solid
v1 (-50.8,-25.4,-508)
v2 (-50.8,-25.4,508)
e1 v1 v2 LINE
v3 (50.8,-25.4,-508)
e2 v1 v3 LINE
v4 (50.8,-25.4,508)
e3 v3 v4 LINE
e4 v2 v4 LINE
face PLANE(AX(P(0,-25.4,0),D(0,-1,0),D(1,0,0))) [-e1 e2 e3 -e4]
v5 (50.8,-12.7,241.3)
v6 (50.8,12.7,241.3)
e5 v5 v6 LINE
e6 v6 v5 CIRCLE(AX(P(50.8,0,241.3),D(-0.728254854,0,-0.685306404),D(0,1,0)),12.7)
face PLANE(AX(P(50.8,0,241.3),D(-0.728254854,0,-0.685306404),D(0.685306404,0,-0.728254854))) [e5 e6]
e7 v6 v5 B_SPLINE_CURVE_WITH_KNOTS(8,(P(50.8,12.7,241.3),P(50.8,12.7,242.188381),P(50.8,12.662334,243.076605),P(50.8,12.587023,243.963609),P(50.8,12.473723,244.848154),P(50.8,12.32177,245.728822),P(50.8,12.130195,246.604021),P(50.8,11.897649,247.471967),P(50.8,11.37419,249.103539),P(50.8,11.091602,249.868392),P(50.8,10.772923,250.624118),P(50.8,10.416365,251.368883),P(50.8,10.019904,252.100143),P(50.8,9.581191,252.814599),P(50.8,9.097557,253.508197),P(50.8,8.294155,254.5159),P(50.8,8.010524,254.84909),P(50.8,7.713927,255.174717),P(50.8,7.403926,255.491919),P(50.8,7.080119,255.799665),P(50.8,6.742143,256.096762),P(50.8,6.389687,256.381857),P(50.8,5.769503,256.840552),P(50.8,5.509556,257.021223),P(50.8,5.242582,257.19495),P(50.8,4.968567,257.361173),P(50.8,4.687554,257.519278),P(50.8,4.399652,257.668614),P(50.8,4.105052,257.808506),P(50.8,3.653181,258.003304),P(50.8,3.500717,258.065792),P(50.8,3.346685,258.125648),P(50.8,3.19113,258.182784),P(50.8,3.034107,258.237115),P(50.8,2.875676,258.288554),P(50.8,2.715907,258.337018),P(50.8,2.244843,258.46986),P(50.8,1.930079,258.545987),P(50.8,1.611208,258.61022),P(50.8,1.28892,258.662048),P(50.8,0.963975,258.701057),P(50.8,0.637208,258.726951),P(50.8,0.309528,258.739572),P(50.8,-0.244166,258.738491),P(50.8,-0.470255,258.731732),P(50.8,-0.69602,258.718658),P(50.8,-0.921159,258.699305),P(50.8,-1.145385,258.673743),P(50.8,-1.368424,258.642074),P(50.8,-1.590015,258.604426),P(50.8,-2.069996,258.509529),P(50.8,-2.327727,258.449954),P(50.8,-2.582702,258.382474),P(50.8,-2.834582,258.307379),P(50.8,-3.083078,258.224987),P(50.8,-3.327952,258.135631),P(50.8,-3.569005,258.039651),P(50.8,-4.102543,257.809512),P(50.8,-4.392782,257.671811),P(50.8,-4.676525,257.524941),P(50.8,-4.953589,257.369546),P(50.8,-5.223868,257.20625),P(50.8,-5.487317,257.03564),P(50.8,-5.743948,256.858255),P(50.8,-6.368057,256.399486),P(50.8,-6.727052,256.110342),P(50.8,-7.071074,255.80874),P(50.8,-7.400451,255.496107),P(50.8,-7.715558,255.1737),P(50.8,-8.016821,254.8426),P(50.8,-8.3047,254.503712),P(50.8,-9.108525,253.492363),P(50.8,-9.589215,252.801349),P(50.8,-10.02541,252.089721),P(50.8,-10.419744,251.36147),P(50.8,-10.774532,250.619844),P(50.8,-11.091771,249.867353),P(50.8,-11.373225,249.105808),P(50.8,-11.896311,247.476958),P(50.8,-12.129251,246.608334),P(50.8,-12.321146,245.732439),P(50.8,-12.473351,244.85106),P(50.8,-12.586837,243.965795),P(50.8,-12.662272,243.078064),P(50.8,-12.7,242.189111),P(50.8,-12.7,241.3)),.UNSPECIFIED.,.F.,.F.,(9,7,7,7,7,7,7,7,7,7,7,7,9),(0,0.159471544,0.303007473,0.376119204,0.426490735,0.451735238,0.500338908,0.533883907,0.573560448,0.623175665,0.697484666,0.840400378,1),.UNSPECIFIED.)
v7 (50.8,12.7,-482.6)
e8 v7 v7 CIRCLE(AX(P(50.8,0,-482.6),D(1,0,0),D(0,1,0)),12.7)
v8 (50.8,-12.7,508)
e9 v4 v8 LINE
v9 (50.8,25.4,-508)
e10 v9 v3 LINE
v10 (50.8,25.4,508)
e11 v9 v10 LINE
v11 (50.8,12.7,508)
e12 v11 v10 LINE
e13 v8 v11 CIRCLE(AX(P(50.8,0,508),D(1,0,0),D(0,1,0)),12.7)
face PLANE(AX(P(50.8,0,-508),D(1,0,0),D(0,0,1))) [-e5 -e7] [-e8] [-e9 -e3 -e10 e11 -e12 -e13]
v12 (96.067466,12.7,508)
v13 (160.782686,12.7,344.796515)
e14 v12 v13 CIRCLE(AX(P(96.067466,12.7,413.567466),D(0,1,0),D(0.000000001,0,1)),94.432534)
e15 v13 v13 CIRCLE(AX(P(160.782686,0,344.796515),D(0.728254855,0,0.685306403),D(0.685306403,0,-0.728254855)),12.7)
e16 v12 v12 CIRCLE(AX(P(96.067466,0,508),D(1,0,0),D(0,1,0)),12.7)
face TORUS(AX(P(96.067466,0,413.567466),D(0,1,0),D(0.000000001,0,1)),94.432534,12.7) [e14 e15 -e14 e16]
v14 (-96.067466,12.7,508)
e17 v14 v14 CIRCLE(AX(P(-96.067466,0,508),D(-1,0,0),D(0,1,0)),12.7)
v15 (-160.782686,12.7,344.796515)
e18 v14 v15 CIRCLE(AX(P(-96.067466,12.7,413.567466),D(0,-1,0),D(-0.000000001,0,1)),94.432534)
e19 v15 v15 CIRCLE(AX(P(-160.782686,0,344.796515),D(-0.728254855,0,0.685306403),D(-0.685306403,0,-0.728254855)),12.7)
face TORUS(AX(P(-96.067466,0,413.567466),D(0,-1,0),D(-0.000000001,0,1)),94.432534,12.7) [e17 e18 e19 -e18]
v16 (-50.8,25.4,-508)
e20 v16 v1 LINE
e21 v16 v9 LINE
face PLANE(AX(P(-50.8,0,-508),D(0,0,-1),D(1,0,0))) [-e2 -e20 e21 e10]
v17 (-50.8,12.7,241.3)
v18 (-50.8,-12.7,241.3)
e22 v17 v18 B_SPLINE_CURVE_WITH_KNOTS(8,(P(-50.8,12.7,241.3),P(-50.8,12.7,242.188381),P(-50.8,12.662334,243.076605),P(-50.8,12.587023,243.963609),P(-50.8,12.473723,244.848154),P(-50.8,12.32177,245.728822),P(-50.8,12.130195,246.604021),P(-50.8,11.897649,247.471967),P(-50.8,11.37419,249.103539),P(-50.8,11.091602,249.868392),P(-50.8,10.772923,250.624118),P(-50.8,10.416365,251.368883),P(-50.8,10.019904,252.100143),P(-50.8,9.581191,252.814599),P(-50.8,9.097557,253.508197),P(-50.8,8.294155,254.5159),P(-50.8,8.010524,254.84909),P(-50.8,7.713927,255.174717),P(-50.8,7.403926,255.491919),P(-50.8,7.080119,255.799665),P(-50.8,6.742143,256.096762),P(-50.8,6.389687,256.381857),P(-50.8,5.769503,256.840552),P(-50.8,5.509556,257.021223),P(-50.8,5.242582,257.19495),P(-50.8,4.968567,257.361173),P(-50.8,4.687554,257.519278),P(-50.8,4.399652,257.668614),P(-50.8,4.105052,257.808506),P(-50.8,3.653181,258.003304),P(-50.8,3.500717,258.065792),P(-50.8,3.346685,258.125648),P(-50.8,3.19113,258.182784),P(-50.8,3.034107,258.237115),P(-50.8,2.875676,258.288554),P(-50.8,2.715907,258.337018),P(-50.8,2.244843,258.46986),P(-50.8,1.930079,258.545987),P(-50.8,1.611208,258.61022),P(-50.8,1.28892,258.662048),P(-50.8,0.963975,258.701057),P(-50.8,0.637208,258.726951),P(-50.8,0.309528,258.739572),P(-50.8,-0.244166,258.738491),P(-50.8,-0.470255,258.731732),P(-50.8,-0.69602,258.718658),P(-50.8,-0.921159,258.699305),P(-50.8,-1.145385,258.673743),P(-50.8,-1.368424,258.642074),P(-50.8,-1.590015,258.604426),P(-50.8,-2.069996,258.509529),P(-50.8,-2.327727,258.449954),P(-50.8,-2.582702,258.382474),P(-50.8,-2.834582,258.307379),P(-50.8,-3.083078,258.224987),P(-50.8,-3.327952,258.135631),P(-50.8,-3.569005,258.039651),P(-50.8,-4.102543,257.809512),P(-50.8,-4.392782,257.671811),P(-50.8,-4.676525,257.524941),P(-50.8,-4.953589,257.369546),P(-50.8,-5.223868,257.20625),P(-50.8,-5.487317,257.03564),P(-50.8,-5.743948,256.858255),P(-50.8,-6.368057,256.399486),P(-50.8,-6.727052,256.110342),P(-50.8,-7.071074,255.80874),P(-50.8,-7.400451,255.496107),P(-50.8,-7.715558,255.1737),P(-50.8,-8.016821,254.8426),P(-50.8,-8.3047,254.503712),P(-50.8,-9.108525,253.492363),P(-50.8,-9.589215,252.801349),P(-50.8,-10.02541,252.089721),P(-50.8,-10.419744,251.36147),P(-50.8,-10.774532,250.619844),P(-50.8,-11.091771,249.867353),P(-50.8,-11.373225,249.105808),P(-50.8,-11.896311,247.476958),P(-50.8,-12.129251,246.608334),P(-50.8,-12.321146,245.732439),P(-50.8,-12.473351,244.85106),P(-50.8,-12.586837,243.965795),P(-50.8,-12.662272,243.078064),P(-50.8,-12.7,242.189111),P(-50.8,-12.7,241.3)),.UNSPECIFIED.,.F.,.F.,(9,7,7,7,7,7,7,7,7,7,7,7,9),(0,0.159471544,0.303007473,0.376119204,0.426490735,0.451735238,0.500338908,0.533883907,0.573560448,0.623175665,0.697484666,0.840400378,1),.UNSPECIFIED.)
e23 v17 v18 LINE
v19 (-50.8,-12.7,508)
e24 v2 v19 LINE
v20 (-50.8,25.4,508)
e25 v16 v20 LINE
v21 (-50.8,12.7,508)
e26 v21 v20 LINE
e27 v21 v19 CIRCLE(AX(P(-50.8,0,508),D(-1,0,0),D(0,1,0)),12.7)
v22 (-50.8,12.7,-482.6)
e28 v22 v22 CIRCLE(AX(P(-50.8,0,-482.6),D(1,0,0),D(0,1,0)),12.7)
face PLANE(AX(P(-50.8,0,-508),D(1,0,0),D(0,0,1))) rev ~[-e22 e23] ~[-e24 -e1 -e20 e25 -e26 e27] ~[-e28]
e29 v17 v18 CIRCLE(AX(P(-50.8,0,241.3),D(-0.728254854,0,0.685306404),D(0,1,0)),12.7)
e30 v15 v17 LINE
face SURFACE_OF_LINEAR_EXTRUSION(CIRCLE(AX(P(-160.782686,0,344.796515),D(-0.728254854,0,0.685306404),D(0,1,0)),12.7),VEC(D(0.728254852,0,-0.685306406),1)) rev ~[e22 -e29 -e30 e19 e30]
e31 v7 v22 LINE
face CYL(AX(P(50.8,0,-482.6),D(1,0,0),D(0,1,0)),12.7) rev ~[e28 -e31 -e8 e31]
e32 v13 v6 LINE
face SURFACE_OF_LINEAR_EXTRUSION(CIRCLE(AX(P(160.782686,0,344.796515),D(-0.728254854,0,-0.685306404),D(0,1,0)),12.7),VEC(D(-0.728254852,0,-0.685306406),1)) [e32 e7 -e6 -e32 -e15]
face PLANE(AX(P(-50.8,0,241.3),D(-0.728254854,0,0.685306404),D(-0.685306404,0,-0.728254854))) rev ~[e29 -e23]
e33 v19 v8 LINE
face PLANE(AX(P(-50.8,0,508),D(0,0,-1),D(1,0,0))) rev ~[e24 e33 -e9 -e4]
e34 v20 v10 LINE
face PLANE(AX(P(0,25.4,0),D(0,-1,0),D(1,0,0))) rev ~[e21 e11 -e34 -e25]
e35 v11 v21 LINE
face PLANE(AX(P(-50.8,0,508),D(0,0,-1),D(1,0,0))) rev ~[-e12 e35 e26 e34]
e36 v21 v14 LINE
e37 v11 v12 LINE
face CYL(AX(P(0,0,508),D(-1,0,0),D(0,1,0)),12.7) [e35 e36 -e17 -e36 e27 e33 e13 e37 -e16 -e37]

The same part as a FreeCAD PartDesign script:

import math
import FreeCAD as App
import Part
import Sketcher

V = App.Vector
Q = App.Units.Quantity


def add_polygon(sketch, points):
    """Adds a closed chain of lines whose ends are joined by coincident constraints."""
    first, n = sketch.GeometryCount, len(points)
    for a, b in zip(points, points[1:] + points[:1]):
        sketch.addGeometry(Part.LineSegment(App.Vector(*a, 0), App.Vector(*b, 0)), False)
    for i in range(n):
        sketch.addConstraint(Sketcher.Constraint("Coincident", first + i, 2, first + (i + 1) % n, 1))

doc = App.newDocument("Part")
params = doc.addObject("Spreadsheet::Sheet", "Params")
for row, (alias, value) in enumerate([
    ("sketch1_width", "4 in"),
    ("sketch1_height", "40 in"),
    ("pad1_length", "2 in"),
    ("sketch2_diameter", "1 in"),
    ("sketch4_diameter", "1 in"),
    ("sketch6_diameter", "1 in"),
], start=1):
    params.set(f"A{row}", alias)
    params.set(f"B{row}", "=" + value)
    params.setAlias(f"B{row}", alias)

body = doc.addObject("PartDesign::Body", "Body")

# Sketch on XZ plane
sketch1 = body.newObject("Sketcher::SketchObject", "Sketch")
sketch1.AttachmentSupport = (doc.getObject("XZ_Plane"), [""])
sketch1.MapMode = "FlatFace"
add_polygon(sketch1, [(-51, 508), (-51, -508), (51, -508), (51, 508)])  # lines 0-3
sketch1.addConstraint([
    Sketcher.Constraint("Vertical", 0),
    Sketcher.Constraint("Horizontal", 1),
    Sketcher.Constraint("Vertical", 2),
    Sketcher.Constraint("Horizontal", 3),
    Sketcher.Constraint("Symmetric", 0, 2, 2, 2, -1, 1),
    Sketcher.Constraint("DistanceX", 1, 1, 1, 2, Q("4 in")),
    Sketcher.Constraint("DistanceY", 0, 2, 0, 1, Q("40 in")),
])
sketch1.setExpression("Constraints[9]", "Params.sketch1_width")
sketch1.setExpression("Constraints[10]", "Params.sketch1_height")
pad1 = body.newObject("PartDesign::Pad", "Pad")
pad1.Profile = sketch1
pad1.setExpression("Length", "Params.pad1_length")
pad1.Midplane = True

# Sketch on YZ plane
sketch2 = body.newObject("Sketcher::SketchObject", "Sketch001")
sketch2.AttachmentSupport = (doc.getObject("YZ_Plane"), [""])
sketch2.MapMode = "FlatFace"
sketch2.addGeometry(Part.Circle(V(0, 508, 0), V(0, 0, 1), 13), False)
sketch2.addConstraint([
    Sketcher.Constraint("PointOnObject", 0, 3, -2),
    Sketcher.Constraint("Diameter", 0, Q("1 in")),
    Sketcher.Constraint("DistanceY", -1, 1, 0, 3, Q("20 in")),
])
sketch2.setExpression("Constraints[1]", "Params.sketch2_diameter")

# Sketch on XZ plane
sketch3 = body.newObject("Sketcher::SketchObject", "Sketch002")
sketch3.AttachmentSupport = (doc.getObject("XZ_Plane"), [""])
sketch3.MapMode = "FlatFace"
sketch3.addGeometry([
    Part.LineSegment(V(0, 508, 0), V(96, 508, 0)),
    Part.ArcOfCircle(Part.Circle(V(96, 414, 0), V(0, 0, 1), 94), math.radians(-47), math.radians(90)),
    Part.LineSegment(V(161, 345, 0), V(51, 241, 0)),
], False)
sketch3.addConstraint([
    Sketcher.Constraint("Tangent", 0, 2, 1, 2),
    Sketcher.Constraint("Tangent", 1, 1, 2, 1),
    Sketcher.Constraint("Horizontal", 0),
    Sketcher.Constraint("PointOnObject", 0, 1, -2),
    Sketcher.Constraint("DistanceY", -1, 1, 0, 1, Q("20 in")),
    Sketcher.Constraint("DistanceX", -1, 1, 2, 2, Q("2 in")),
    Sketcher.Constraint("DistanceY", -1, 1, 2, 2, Q("9.5 in")),
    Sketcher.Constraint("Radius", 1, Q("94.432534 mm")),
    Sketcher.Constraint("Distance", 2, Q("151.022249 mm")),
])
doc.recompute()

additivepipe = body.newObject("PartDesign::AdditivePipe", "AdditivePipe")
additivepipe.Profile = sketch2
additivepipe.Spine = (sketch3, ["Edge1", "Edge2", "Edge3"])

# Sketch on YZ plane
sketch4 = body.newObject("Sketcher::SketchObject", "Sketch003")
sketch4.AttachmentSupport = (doc.getObject("YZ_Plane"), [""])
sketch4.MapMode = "FlatFace"
sketch4.addGeometry(Part.Circle(V(0, 508, 0), V(0, 0, 1), 13), False)
sketch4.addConstraint([
    Sketcher.Constraint("PointOnObject", 0, 3, -2),
    Sketcher.Constraint("Diameter", 0, Q("1 in")),
    Sketcher.Constraint("DistanceY", -1, 1, 0, 3, Q("20 in")),
])
sketch4.setExpression("Constraints[1]", "Params.sketch4_diameter")

# Sketch on XZ plane
sketch5 = body.newObject("Sketcher::SketchObject", "Sketch004")
sketch5.AttachmentSupport = (doc.getObject("XZ_Plane"), [""])
sketch5.MapMode = "FlatFace"
sketch5.addGeometry([
    Part.LineSegment(V(0, 508, 0), V(-96, 508, 0)),
    Part.ArcOfCircle(Part.Circle(V(-96, 414, 0), V(0, 0, 1), 94), math.radians(90), math.radians(227)),
    Part.LineSegment(V(-161, 345, 0), V(-51, 241, 0)),
], False)
sketch5.addConstraint([
    Sketcher.Constraint("Tangent", 0, 2, 1, 1),
    Sketcher.Constraint("Tangent", 1, 2, 2, 1),
    Sketcher.Constraint("Horizontal", 0),
    Sketcher.Constraint("PointOnObject", 0, 1, -2),
    Sketcher.Constraint("DistanceY", -1, 1, 0, 1, Q("20 in")),
    Sketcher.Constraint("DistanceX", 2, 2, -1, 1, Q("2 in")),
    Sketcher.Constraint("DistanceY", -1, 1, 2, 2, Q("9.5 in")),
    Sketcher.Constraint("Radius", 1, Q("94.432534 mm")),
    Sketcher.Constraint("Distance", 2, Q("151.022249 mm")),
])
doc.recompute()

additivepipe2 = body.newObject("PartDesign::AdditivePipe", "AdditivePipe001")
additivepipe2.Profile = sketch4
additivepipe2.Spine = (sketch5, ["Edge1", "Edge2", "Edge3"])

# Sketch on YZ plane
sketch6 = body.newObject("Sketcher::SketchObject", "Sketch005")
sketch6.AttachmentSupport = (doc.getObject("YZ_Plane"), [""])
sketch6.MapMode = "FlatFace"
sketch6.AttachmentOffset = App.Placement(V(0, 0, 2 * 25.4), App.Rotation())
sketch6.addGeometry(Part.Circle(V(0, -483, 0), V(0, 0, 1), 13), False)
sketch6.addConstraint([
    Sketcher.Constraint("PointOnObject", 0, 3, -2),
    Sketcher.Constraint("Diameter", 0, Q("1 in")),
    Sketcher.Constraint("DistanceY", 0, 3, -1, 1, Q("19 in")),
])
sketch6.setExpression("Constraints[1]", "Params.sketch6_diameter")
pocket1 = body.newObject("PartDesign::Pocket", "Pocket")
pocket1.Profile = sketch6
pocket1.Type = "ThroughAll"

doc.recompute()
